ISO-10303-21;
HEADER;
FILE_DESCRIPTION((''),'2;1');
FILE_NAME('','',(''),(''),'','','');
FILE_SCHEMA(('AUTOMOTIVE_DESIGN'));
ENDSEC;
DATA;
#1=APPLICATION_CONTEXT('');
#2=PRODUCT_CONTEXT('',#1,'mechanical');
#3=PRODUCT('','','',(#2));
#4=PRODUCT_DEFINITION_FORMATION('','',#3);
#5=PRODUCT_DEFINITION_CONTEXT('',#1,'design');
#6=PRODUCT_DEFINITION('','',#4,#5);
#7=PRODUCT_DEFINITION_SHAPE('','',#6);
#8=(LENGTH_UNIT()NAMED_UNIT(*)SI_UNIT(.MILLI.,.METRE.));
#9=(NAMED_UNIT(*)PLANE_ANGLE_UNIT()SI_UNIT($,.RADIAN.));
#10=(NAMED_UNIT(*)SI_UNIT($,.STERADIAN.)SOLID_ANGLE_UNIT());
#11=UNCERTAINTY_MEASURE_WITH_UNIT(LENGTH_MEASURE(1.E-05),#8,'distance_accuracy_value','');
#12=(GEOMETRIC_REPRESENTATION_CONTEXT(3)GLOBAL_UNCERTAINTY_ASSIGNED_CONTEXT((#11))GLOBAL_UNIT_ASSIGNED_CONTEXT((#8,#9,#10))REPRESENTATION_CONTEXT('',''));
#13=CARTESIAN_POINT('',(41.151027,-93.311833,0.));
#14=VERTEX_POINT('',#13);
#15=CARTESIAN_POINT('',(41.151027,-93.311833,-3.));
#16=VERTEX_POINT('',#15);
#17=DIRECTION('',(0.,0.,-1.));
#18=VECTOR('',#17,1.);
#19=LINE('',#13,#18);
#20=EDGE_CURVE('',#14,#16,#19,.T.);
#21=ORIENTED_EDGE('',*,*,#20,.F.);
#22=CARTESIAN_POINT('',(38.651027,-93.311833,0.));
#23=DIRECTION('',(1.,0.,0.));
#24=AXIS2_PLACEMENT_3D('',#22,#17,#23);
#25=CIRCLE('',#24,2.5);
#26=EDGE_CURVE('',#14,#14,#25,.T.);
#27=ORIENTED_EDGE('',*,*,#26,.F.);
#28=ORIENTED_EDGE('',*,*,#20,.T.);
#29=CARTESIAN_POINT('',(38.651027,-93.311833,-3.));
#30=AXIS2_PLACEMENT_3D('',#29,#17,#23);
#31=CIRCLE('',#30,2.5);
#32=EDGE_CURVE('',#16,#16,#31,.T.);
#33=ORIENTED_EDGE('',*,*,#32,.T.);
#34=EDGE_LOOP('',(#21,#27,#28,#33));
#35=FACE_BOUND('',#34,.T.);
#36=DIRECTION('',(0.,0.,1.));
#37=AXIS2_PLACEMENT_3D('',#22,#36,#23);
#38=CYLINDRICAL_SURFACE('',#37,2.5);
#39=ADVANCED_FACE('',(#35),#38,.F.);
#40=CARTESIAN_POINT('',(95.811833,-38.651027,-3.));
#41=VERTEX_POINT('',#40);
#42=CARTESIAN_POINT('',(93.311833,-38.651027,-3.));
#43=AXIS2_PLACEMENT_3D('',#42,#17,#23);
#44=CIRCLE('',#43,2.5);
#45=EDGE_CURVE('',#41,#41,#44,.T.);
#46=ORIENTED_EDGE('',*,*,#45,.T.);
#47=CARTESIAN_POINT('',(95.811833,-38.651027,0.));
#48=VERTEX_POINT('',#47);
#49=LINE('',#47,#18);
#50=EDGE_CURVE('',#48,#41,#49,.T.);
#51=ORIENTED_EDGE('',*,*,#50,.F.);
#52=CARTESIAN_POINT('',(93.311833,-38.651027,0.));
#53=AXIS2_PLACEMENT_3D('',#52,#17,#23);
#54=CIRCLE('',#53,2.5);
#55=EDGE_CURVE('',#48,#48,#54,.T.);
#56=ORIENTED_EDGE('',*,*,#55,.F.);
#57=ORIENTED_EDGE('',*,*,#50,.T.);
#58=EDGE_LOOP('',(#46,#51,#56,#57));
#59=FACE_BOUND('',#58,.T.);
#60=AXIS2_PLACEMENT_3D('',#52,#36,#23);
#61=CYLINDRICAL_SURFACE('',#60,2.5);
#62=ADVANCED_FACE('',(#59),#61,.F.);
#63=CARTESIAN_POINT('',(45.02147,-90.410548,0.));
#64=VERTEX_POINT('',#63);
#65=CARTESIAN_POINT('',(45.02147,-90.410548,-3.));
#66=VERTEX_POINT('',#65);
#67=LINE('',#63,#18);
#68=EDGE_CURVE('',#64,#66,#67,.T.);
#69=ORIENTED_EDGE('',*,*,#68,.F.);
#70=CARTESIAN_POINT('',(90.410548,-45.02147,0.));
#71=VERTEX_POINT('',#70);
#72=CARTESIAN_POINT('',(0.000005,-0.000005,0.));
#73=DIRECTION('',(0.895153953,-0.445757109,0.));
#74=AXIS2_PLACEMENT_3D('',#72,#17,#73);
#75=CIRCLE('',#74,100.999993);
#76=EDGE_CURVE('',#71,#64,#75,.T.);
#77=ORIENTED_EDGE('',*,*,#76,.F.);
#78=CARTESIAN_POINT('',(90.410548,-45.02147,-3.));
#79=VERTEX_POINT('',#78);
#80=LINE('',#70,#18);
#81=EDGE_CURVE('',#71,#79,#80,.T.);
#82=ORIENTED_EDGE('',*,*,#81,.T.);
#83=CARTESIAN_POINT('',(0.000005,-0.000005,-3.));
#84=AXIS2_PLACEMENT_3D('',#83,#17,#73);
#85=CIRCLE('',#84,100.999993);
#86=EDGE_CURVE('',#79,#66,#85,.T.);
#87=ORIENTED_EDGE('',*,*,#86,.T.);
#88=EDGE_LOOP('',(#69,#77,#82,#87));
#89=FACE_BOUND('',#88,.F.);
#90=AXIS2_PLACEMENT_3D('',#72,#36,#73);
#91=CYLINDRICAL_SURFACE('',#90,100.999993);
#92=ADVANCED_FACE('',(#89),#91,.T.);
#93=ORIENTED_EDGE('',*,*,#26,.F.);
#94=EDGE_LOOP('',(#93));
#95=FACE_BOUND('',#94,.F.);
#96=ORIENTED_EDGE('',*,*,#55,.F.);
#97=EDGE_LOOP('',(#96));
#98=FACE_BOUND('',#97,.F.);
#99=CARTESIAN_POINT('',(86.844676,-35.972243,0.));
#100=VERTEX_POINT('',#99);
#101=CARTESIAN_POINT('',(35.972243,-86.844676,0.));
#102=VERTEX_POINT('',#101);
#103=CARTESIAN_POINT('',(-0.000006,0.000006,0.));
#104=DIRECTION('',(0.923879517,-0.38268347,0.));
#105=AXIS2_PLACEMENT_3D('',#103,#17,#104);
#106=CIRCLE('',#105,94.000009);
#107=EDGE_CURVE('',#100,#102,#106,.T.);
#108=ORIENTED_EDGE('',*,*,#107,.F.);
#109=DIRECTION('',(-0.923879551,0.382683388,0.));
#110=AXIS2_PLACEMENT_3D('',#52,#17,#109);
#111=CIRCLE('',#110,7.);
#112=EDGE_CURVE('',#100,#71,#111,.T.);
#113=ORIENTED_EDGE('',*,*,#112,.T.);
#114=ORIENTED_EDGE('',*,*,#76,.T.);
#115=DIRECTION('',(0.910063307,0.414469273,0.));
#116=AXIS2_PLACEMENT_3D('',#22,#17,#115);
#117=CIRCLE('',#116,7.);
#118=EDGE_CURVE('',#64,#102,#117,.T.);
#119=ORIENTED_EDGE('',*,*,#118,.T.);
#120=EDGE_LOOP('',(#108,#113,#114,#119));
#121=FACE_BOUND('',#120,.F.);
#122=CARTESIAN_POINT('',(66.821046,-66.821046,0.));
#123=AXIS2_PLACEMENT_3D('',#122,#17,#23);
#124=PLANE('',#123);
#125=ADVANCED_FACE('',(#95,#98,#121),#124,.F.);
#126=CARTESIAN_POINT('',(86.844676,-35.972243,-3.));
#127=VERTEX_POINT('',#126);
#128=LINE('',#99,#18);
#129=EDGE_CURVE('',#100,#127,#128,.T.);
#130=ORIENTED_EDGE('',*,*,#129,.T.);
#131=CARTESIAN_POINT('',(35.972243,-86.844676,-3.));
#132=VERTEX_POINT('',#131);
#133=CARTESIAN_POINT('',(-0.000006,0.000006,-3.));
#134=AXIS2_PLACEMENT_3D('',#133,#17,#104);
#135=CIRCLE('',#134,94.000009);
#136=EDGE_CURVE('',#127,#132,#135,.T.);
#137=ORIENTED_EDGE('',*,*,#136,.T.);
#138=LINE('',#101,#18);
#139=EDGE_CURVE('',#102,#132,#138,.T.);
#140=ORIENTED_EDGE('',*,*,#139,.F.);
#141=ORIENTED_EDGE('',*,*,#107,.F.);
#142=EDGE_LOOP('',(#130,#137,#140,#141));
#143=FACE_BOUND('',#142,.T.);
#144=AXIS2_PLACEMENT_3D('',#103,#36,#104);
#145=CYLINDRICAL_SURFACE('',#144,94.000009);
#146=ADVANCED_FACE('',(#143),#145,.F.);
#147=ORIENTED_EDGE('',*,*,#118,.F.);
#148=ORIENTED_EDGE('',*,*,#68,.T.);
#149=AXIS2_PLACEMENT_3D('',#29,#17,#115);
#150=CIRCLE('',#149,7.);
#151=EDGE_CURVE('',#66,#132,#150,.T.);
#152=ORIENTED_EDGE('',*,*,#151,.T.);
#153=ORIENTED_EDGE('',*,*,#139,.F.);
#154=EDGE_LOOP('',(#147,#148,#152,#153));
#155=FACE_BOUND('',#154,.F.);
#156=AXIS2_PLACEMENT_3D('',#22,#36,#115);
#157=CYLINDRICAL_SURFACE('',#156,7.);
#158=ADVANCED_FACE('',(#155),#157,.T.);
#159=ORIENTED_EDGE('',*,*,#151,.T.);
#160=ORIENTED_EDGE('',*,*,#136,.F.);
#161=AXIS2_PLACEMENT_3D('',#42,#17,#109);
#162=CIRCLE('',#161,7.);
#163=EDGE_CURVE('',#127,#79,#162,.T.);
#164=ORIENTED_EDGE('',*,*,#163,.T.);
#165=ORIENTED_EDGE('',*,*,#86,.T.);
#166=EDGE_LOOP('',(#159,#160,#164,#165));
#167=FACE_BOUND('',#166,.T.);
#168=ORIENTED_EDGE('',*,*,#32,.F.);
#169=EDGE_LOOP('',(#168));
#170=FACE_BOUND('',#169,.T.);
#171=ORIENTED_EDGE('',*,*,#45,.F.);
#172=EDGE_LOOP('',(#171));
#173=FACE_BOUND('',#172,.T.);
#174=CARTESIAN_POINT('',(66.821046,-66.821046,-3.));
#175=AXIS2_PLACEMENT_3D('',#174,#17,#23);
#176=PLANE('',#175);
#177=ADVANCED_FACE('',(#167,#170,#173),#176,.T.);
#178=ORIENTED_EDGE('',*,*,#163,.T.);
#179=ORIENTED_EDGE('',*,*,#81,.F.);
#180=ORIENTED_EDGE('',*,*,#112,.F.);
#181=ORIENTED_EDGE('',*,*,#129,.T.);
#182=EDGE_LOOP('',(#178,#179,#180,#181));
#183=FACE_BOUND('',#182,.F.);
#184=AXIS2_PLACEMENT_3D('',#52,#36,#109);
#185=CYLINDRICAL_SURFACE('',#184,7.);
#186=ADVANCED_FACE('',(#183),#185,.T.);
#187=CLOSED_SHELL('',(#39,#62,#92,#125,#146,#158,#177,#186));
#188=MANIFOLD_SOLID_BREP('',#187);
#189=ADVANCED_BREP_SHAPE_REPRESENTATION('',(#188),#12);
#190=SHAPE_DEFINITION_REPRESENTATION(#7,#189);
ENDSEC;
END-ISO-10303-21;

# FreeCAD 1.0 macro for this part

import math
import FreeCAD as App
import Part
import Sketcher
from FreeCAD import Vector
Q = App.Units.Quantity

doc = App.newDocument("Part")
body = doc.addObject("PartDesign::Body", "Body")

# Sketch on XY plane
sketch1 = body.newObject("Sketcher::SketchObject", "Sketch")
sketch1.AttachmentSupport = (doc.getObject("XY_Plane"), [""])
sketch1.MapMode = "FlatFace"
sketch1.addGeometry(Part.ArcOfCircle(Part.Circle(Vector(38.651027, -93.311833, 0), Vector(0, 0, 1), 7), math.radians(112.499997), math.radians(384.485899)), False)
sketch1.addGeometry(Part.ArcOfCircle(Part.Circle(Vector(-0.000006, 0.000006, 0), Vector(0, 0, 1), 94.000009), math.radians(-67.499998), math.radians(-22.500002)), False)
sketch1.addGeometry(Part.ArcOfCircle(Part.Circle(Vector(93.311833, -38.651027, 0), Vector(0, 0, 1), 7), math.radians(-114.485899), math.radians(157.500003)), False)
sketch1.addGeometry(Part.ArcOfCircle(Part.Circle(Vector(0.000005, -0.000005, 0), Vector(0, 0, 1), 100.999993), math.radians(-63.528211), math.radians(-26.471789)), False)
sketch1.addGeometry(Part.Circle(Vector(93.311833, -38.651027, 0), Vector(0, 0, 1), 2.5), False)
sketch1.addGeometry(Part.Circle(Vector(38.651027, -93.311833, 0), Vector(0, 0, 1), 2.5), False)
sketch1.addConstraint(Sketcher.Constraint("Tangent", 0, 1, 1, 1))
sketch1.addConstraint(Sketcher.Constraint("Tangent", 1, 2, 2, 2))
sketch1.addConstraint(Sketcher.Constraint("Coincident", 2, 1, 3, 2))
sketch1.addConstraint(Sketcher.Constraint("Coincident", 3, 1, 0, 2))
sketch1.addConstraint(Sketcher.Constraint("Coincident", 1, 3, -1, 1))
sketch1.addConstraint(Sketcher.Constraint("Coincident", 3, 3, -1, 1))
sketch1.addConstraint(Sketcher.Constraint("Coincident", 4, 3, 2, 3))
sketch1.addConstraint(Sketcher.Constraint("Coincident", 5, 3, 0, 3))
sketch1.addConstraint(Sketcher.Constraint("Equal", 0, 2))
sketch1.addConstraint(Sketcher.Constraint("Equal", 4, 5))
sketch1.addConstraint(Sketcher.Constraint("Diameter", 4, Q("5 mm")))
sketch1.addConstraint(Sketcher.Constraint("Radius", 0, Q("7 mm")))
sketch1.addConstraint(Sketcher.Constraint("Radius", 1, Q("94.000009 mm")))
sketch1.addConstraint(Sketcher.Constraint("Radius", 3, Q("100.999993 mm")))
sketch1.addConstraint(Sketcher.Constraint("DistanceX", -1, 1, 2, 1, Q("90.410548 mm")))
sketch1.addConstraint(Sketcher.Constraint("DistanceX", -1, 1, 3, 1, Q("45.02147 mm")))
pad1 = body.newObject("PartDesign::Pad", "Pad")
pad1.Profile = sketch1
pad1.Length = 3
pad1.Reversed = True

doc.recompute()
